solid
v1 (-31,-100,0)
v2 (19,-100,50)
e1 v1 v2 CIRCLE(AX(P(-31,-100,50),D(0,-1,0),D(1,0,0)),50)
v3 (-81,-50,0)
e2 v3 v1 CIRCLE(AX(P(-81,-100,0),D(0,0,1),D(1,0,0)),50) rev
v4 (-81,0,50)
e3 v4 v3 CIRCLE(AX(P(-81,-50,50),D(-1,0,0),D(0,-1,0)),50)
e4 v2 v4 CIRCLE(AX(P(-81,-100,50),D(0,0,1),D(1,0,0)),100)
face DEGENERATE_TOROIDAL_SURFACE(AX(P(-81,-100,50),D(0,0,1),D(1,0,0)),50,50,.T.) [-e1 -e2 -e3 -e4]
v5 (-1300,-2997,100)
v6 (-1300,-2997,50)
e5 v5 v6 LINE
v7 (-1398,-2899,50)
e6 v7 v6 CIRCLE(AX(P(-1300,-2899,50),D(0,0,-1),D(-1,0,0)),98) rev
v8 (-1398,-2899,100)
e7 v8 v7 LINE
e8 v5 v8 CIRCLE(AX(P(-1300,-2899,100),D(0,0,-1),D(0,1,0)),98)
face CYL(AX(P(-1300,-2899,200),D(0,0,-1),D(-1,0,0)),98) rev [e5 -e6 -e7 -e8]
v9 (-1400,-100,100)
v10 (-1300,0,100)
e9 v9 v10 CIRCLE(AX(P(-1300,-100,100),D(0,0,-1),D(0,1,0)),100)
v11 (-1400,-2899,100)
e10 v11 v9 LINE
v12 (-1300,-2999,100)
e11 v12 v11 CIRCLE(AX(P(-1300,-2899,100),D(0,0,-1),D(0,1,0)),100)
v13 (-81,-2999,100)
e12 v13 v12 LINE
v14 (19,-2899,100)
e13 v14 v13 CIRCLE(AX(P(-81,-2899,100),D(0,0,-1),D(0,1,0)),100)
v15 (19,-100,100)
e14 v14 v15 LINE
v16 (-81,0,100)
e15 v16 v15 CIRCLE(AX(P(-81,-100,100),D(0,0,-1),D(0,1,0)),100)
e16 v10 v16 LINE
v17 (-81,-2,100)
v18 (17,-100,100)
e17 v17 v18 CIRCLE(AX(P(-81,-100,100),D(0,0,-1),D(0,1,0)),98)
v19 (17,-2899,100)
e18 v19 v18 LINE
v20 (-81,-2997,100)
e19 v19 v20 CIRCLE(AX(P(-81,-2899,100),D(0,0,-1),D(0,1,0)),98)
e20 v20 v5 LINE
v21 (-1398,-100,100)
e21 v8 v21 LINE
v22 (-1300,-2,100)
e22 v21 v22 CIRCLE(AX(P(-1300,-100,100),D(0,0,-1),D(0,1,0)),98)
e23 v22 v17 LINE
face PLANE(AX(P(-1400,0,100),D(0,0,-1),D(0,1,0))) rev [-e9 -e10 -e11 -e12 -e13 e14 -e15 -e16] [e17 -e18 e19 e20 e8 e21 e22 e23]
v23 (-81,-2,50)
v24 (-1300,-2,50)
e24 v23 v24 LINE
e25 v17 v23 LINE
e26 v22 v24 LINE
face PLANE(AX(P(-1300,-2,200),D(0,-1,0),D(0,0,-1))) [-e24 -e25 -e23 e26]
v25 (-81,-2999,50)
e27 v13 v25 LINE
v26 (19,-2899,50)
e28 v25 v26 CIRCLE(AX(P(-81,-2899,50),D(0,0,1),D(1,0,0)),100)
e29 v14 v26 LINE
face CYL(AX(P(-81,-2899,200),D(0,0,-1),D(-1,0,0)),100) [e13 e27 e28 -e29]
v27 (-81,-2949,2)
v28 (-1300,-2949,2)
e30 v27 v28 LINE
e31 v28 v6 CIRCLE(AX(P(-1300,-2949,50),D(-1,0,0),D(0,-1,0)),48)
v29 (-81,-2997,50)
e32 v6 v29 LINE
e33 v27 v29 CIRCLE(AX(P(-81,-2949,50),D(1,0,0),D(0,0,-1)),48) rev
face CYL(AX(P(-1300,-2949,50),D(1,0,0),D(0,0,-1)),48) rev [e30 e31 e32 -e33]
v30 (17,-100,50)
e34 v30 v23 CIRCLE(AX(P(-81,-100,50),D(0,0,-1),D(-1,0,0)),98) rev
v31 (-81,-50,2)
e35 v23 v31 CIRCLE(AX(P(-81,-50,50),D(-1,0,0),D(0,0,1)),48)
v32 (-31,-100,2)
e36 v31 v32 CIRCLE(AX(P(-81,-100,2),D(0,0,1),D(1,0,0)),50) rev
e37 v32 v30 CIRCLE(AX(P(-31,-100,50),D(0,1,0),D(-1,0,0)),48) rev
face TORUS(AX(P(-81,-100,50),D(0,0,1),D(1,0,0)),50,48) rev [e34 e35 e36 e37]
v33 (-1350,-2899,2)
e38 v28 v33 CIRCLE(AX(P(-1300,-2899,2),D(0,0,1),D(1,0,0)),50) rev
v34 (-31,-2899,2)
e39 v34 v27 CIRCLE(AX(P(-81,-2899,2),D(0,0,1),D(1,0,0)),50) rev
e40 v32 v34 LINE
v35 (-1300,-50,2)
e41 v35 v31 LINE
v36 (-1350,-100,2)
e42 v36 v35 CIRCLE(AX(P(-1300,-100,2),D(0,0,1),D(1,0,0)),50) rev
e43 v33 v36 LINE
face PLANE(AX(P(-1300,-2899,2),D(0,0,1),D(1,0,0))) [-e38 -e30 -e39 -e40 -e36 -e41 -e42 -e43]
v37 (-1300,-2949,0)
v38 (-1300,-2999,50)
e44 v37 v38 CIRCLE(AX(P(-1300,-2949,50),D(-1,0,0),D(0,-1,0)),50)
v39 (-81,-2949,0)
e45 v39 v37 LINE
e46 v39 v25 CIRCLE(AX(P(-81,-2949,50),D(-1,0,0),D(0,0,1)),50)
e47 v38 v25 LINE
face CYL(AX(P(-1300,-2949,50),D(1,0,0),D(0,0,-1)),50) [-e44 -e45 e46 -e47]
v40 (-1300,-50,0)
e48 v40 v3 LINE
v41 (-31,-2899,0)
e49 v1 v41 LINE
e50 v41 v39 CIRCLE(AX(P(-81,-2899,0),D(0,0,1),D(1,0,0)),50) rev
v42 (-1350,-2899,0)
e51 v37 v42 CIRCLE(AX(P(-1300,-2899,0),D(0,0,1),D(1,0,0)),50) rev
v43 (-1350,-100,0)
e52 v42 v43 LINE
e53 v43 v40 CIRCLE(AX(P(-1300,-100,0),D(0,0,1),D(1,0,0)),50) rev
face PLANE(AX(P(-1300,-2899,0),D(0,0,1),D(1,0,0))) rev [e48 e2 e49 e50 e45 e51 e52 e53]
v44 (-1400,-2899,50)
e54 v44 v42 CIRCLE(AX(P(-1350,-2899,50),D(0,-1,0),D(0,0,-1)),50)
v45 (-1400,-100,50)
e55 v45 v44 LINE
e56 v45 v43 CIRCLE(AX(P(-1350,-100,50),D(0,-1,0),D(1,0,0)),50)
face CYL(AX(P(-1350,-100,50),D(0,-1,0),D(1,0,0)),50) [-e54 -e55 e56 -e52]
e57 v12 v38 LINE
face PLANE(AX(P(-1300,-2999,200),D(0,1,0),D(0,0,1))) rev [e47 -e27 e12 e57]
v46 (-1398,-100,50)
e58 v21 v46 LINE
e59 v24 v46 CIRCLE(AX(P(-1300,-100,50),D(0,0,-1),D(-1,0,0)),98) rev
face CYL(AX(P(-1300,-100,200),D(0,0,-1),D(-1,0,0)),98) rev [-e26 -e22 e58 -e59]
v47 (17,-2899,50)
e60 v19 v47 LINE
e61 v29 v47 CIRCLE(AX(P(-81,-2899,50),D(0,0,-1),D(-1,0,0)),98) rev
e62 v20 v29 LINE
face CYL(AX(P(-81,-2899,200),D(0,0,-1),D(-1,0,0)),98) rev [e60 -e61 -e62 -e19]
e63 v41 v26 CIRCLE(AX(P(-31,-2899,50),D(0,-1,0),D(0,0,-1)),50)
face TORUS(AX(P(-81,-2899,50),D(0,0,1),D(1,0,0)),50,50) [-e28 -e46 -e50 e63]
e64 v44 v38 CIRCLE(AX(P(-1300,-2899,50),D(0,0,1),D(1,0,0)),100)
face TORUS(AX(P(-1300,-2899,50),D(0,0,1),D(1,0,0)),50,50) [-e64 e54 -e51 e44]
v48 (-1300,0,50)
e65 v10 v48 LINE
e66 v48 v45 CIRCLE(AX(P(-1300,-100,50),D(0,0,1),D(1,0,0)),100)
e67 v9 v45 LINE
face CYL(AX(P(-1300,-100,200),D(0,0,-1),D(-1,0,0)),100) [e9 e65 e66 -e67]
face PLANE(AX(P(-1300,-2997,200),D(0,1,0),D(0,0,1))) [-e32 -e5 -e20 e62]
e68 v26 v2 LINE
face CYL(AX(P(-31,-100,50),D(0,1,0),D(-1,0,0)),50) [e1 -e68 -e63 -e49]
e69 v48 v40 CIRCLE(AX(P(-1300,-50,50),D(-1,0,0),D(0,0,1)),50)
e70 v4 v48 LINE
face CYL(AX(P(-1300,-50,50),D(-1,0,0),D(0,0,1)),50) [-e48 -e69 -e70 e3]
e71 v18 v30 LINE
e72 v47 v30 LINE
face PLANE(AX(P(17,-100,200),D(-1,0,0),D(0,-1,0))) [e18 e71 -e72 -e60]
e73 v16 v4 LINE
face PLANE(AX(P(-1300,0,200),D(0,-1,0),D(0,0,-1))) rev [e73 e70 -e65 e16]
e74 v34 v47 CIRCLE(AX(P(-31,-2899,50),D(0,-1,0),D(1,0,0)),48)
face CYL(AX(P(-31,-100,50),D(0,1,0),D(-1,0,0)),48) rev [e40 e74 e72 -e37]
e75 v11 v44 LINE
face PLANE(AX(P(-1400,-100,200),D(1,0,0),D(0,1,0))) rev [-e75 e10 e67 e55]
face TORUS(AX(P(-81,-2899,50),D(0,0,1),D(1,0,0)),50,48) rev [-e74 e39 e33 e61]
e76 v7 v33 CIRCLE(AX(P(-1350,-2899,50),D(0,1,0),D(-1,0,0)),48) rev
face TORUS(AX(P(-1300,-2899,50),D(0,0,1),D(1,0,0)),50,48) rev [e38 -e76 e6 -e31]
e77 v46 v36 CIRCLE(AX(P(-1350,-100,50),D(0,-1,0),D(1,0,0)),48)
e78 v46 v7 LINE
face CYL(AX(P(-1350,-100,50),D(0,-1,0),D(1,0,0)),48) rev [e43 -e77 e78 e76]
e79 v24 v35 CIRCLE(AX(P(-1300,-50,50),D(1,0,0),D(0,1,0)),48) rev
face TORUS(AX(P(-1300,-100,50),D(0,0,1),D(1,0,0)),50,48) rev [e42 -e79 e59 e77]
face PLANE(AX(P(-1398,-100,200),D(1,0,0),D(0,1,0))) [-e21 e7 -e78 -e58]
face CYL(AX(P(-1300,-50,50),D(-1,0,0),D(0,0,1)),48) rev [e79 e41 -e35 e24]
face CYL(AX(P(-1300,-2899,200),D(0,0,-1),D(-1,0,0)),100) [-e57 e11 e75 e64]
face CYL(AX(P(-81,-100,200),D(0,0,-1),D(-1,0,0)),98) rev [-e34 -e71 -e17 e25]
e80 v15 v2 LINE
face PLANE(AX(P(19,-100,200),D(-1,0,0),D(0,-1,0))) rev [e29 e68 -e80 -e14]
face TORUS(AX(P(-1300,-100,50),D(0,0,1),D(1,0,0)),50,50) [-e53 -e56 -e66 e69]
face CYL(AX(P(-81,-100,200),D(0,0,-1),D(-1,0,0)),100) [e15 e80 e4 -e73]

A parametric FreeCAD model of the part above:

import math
import FreeCAD as App
import Part
import Sketcher
from FreeCAD import Vector
Q = App.Units.Quantity


def edges_at(feature, points):
    """Names of the edges that pass closest to the given points."""
    edges = feature.Shape.Edges
    near = lambda p: min(range(len(edges)), key=lambda i: edges[i].distToShape(Part.Vertex(*p))[0])
    return sorted({f"Edge{near(p) + 1}" for p in points})


def faces_at(feature, points):
    """Names of the faces that lie closest to the given points."""
    faces = feature.Shape.Faces
    near = lambda p: min(range(len(faces)), key=lambda i: faces[i].distToShape(Part.Vertex(*p))[0])
    return sorted({f"Face{near(p) + 1}" for p in points})


def add_polygon(sketch, points):
    """Adds a closed chain of lines whose ends are joined by coincident constraints."""
    first, n = sketch.GeometryCount, len(points)
    for a, b in zip(points, points[1:] + points[:1]):
        sketch.addGeometry(Part.LineSegment(App.Vector(*a, 0), App.Vector(*b, 0)), False)
    for i in range(n):
        sketch.addConstraint(Sketcher.Constraint("Coincident", first + i, 2, first + (i + 1) % n, 1))

doc = App.newDocument("Part")
params = doc.addObject("Spreadsheet::Sheet", "Params")
for row, (alias, value) in enumerate([
    ("sketch1_radius", "100 mm"),
    ("sketch1_width", "1219 mm"),
    ("sketch1_height", "2799 mm"),
    ("pad1_length", "200 mm"),
    ("fillet_radius", "50 mm"),
    ("sketch2_width", "3000 mm"),
    ("thickness_wall", "2 mm"),
], start=1):
    params.set(f"A{row}", alias)
    params.set(f"B{row}", "=" + value)
    params.setAlias(f"B{row}", alias)

body = doc.addObject("PartDesign::Body", "Body")

sketch1 = body.newObject("Sketcher::SketchObject", "Sketch")
sketch1.AttachmentSupport = (doc.getObject("XY_Plane"), [""])
sketch1.MapMode = "FlatFace"
sketch1.addGeometry([
    Part.LineSegment(Vector(-81, 0, 0), Vector(-1300, 0, 0)),
    Part.ArcOfCircle(Part.Circle(Vector(-1300, -100, 0), Vector(0, 0, 1), 100), math.radians(90), math.radians(180)),
    Part.LineSegment(Vector(-1400, -100, 0), Vector(-1400, -2899, 0)),
    Part.ArcOfCircle(Part.Circle(Vector(-1300, -2899, 0), Vector(0, 0, 1), 100), math.radians(180), math.radians(270)),
    Part.LineSegment(Vector(-1300, -2999, 0), Vector(-81, -2999, 0)),
    Part.ArcOfCircle(Part.Circle(Vector(-81, -2899, 0), Vector(0, 0, 1), 100), math.radians(-90), math.radians(0)),
    Part.LineSegment(Vector(19, -2899, 0), Vector(19, -100, 0)),
    Part.ArcOfCircle(Part.Circle(Vector(-81, -100, 0), Vector(0, 0, 1), 100), math.radians(0), math.radians(90)),
], False)
sketch1.addConstraint([
    Sketcher.Constraint("Tangent", 0, 2, 1, 1),
    Sketcher.Constraint("Tangent", 1, 2, 2, 1),
    Sketcher.Constraint("Tangent", 2, 2, 3, 1),
    Sketcher.Constraint("Tangent", 3, 2, 4, 1),
    Sketcher.Constraint("Tangent", 4, 2, 5, 1),
    Sketcher.Constraint("Tangent", 5, 2, 6, 1),
    Sketcher.Constraint("Tangent", 6, 2, 7, 1),
    Sketcher.Constraint("Tangent", 7, 2, 0, 1),
    Sketcher.Constraint("Horizontal", 0),
    Sketcher.Constraint("Vertical", 2),
    Sketcher.Constraint("Horizontal", 4),
    Sketcher.Constraint("Vertical", 6),
    Sketcher.Constraint("Equal", 1, 3),
    Sketcher.Constraint("Equal", 3, 5),
    Sketcher.Constraint("Equal", 5, 7),
    Sketcher.Constraint("PointOnObject", 0, 2, -1),
    Sketcher.Constraint("Radius", 1, Q("100 mm")),
    Sketcher.Constraint("DistanceX", 0, 2, 0, 1, Q("1219 mm")),
    Sketcher.Constraint("DistanceY", 2, 2, 2, 1, Q("2799 mm")),
    Sketcher.Constraint("DistanceX", 1, 3, -1, 1, Q("1300 mm")),
])
sketch1.setExpression("Constraints[16]", "Params.sketch1_radius")
sketch1.setExpression("Constraints[17]", "Params.sketch1_width")
sketch1.setExpression("Constraints[18]", "Params.sketch1_height")
pad1 = body.newObject("PartDesign::Pad", "Pad")
pad1.Profile = sketch1
pad1.setExpression("Length", "Params.pad1_length")
doc.recompute()

fillet = body.newObject("PartDesign::Fillet", "Fillet")
fillet.Base = (pad1, edges_at(pad1, [
    (19, -1499.5, 0),
    (-10.289, -2969.711, 0),
    (-690.5, -2999, 0),
    (-1370.711, -2969.711, 0),
    (-10.289, -2969.711, 200),
    (19, -1499.5, 200),
    (-10.289, -29.289, 200),
    (-690.5, 0, 200),
    (-1370.711, -29.289, 200),
    (-1400, -1499.5, 200),
    (-1370.711, -2969.711, 200),
    (-1400, -1499.5, 0),
    (-690.5, -2999, 200),
    (-1370.711, -29.289, 0),
    (-690.5, 0, 0),
    (-10.289, -29.289, 0),
]))
fillet.setExpression("Radius", "Params.fillet_radius")

sketch2 = body.newObject("Sketcher::SketchObject", "Sketch001")
sketch2.AttachmentSupport = (doc.getObject("YZ_Plane"), [""])
sketch2.MapMode = "FlatFace"
sketch2.AttachmentOffset = App.Placement(Vector(0, 0, 19), App.Rotation())
add_polygon(sketch2, [(0, 278.413307), (-3000, 278.413307), (-3000, 100), (0, 100)])
sketch2.addConstraint([
    Sketcher.Constraint("Horizontal", 0),
    Sketcher.Constraint("Vertical", 1),
    Sketcher.Constraint("Horizontal", 2),
    Sketcher.Constraint("Vertical", 3),
    Sketcher.Constraint("PointOnObject", 2, 2, -2),
    Sketcher.Constraint("DistanceX", 0, 2, 0, 1, Q("3000 mm")),
    Sketcher.Constraint("DistanceY", -1, 1, 1, 2, Q("100 mm")),
    Sketcher.Constraint("DistanceY", 1, 2, 1, 1, Q("178.413307 mm")),
])
sketch2.setExpression("Constraints[9]", "Params.sketch2_width")
pocket1 = body.newObject("PartDesign::Pocket", "Pocket")
pocket1.Profile = sketch2
pocket1.Type = "ThroughAll"
doc.recompute()

thickness = body.newObject("PartDesign::Thickness", "Thickness")
thickness.Base = (pocket1, faces_at(pocket1, [(-690.5, -1499.5, 100)]))
thickness.setExpression("Value", "Params.thickness_wall")
thickness.Reversed = True
thickness.Join = "Intersection"

doc.recompute()
